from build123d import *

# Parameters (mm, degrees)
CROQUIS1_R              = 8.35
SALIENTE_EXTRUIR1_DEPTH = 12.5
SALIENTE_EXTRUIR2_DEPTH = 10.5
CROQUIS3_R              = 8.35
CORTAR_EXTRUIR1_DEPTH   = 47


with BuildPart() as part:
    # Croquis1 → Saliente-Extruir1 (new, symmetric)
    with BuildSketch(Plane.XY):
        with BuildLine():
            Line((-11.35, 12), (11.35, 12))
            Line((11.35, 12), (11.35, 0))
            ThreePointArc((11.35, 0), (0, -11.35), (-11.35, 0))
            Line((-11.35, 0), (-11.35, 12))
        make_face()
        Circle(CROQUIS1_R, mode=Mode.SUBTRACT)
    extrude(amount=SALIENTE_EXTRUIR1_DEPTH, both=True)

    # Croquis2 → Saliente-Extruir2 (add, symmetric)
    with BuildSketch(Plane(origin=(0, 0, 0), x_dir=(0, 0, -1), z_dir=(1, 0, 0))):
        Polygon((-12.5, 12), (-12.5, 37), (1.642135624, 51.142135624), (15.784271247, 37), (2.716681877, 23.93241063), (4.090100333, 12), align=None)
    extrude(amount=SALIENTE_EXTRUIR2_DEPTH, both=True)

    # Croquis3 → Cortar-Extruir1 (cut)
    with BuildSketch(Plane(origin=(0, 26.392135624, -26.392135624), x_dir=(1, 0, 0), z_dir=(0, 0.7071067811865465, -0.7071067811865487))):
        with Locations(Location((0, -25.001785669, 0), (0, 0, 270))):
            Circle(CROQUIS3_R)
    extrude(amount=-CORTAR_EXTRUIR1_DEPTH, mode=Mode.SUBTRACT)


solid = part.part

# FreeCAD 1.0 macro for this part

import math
import FreeCAD as App
import Part
import Sketcher

V = App.Vector


def add_polygon(sketch, points):
    """Adds a closed chain of lines whose ends are joined by coincident constraints."""
    first, n = sketch.GeometryCount, len(points)
    for a, b in zip(points, points[1:] + points[:1]):
        sketch.addGeometry(Part.LineSegment(App.Vector(*a, 0), App.Vector(*b, 0)), False)
    for i in range(n):
        sketch.addConstraint(Sketcher.Constraint("Coincident", first + i, 2, first + (i + 1) % n, 1))

doc = App.newDocument("Part")
body = doc.addObject("PartDesign::Body", "Body")

sketch1 = body.newObject("Sketcher::SketchObject", "Sketch")
sketch1.AttachmentSupport = (doc.getObject("XY_Plane"), [""])
sketch1.MapMode = "FlatFace"
sketch1.addGeometry(Part.LineSegment(V(11, 12, 0), V(-11, 12, 0)), False)
sketch1.addGeometry(Part.LineSegment(V(-11, 12, 0), V(-11, 0, 0)), False)
sketch1.addGeometry(Part.ArcOfCircle(Part.Circle(V(0, 0, 0), V(0, 0, 1), 11), math.radians(180), math.radians(360)), False)
sketch1.addGeometry(Part.LineSegment(V(11, 0, 0), V(11, 12, 0)), False)
sketch1.addGeometry(Part.Circle(V(0, 0, 0), V(0, 0, 1), 8), False)
sketch1.addConstraint(Sketcher.Constraint("Coincident", 0, 2, 1, 1))
sketch1.addConstraint(Sketcher.Constraint("Tangent", 1, 2, 2, 1))
sketch1.addConstraint(Sketcher.Constraint("Tangent", 2, 2, 3, 1))
sketch1.addConstraint(Sketcher.Constraint("Coincident", 3, 2, 0, 1))
sketch1.addConstraint(Sketcher.Constraint("Horizontal", 0))
sketch1.addConstraint(Sketcher.Constraint("Vertical", 1))
sketch1.addConstraint(Sketcher.Constraint("Vertical", 3))
sketch1.addConstraint(Sketcher.Constraint("Coincident", 2, 3, -1, 1))
sketch1.addConstraint(Sketcher.Constraint("Coincident", 4, 3, -1, 1))
sketch1.addConstraint(Sketcher.Constraint("Diameter", 4, 16.7))
sketch1.addConstraint(Sketcher.Constraint("DistanceY", 1, 2, 1, 1, 12.0))
sketch1.addConstraint(Sketcher.Constraint("Radius", 2, 11.35))
pad1 = body.newObject("PartDesign::Pad", "Pad")
pad1.Profile = sketch1
pad1.Length = 25
pad1.Midplane = True

sketch2 = body.newObject("Sketcher::SketchObject", "Sketch001")
sketch2.AttachmentSupport = (doc.getObject("YZ_Plane"), [""])
sketch2.MapMode = "FlatFace"
add_polygon(sketch2, [(37, 12), (12, 12), (12, -4), (24, -3), (37, -16), (51, -2)])
sketch2.addConstraint(Sketcher.Constraint("Horizontal", 0))
sketch2.addConstraint(Sketcher.Constraint("Vertical", 1))
sketch2.addConstraint(Sketcher.Constraint("Perpendicular", 3, 4))
sketch2.addConstraint(Sketcher.Constraint("Perpendicular", 4, 5))
sketch2.addConstraint(Sketcher.Constraint("Vertical", 3, 2, 5, 2))
sketch2.addConstraint(Sketcher.Constraint("Equal", 4, 5))
sketch2.addConstraint(Sketcher.Constraint("DistanceX", 0, 2, 0, 1, 25.0))
sketch2.addConstraint(Sketcher.Constraint("Distance", 4, 20.0))
sketch2.addConstraint(Sketcher.Constraint("DistanceX", -1, 1, 0, 2, 12.0))
sketch2.addConstraint(Sketcher.Constraint("DistanceY", -1, 1, 0, 2, 12.5))
sketch2.addConstraint(Sketcher.Constraint("DistanceY", 1, 2, 1, 1, 16.5901))
sketch2.addConstraint(Sketcher.Constraint("Distance", 2, 12.011191))
pad2 = body.newObject("PartDesign::Pad", "Pad001")
pad2.Profile = sketch2
pad2.Length = 21
pad2.Midplane = True

sketch3 = body.newObject("Sketcher::SketchObject", "Sketch002")
sketch3.Placement = App.Placement(V(0, 26.392136, -26.392136), App.Rotation(V(1, 0, 0), V(0, -0.707106781, -0.707106781), V(0, 0.707106781, -0.707106781), "ZXY"))
sketch3.addGeometry(Part.Circle(V(0, -25, 0), V(0, 0, 1), 8), False)
sketch3.addConstraint(Sketcher.Constraint("PointOnObject", 0, 3, -2))
sketch3.addConstraint(Sketcher.Constraint("Diameter", 0, 16.7))
sketch3.addConstraint(Sketcher.Constraint("DistanceY", 0, 3, -1, 1, 25.001786))
pocket1 = body.newObject("PartDesign::Pocket", "Pocket")
pocket1.Profile = sketch3
pocket1.Length = 47

doc.recompute()
